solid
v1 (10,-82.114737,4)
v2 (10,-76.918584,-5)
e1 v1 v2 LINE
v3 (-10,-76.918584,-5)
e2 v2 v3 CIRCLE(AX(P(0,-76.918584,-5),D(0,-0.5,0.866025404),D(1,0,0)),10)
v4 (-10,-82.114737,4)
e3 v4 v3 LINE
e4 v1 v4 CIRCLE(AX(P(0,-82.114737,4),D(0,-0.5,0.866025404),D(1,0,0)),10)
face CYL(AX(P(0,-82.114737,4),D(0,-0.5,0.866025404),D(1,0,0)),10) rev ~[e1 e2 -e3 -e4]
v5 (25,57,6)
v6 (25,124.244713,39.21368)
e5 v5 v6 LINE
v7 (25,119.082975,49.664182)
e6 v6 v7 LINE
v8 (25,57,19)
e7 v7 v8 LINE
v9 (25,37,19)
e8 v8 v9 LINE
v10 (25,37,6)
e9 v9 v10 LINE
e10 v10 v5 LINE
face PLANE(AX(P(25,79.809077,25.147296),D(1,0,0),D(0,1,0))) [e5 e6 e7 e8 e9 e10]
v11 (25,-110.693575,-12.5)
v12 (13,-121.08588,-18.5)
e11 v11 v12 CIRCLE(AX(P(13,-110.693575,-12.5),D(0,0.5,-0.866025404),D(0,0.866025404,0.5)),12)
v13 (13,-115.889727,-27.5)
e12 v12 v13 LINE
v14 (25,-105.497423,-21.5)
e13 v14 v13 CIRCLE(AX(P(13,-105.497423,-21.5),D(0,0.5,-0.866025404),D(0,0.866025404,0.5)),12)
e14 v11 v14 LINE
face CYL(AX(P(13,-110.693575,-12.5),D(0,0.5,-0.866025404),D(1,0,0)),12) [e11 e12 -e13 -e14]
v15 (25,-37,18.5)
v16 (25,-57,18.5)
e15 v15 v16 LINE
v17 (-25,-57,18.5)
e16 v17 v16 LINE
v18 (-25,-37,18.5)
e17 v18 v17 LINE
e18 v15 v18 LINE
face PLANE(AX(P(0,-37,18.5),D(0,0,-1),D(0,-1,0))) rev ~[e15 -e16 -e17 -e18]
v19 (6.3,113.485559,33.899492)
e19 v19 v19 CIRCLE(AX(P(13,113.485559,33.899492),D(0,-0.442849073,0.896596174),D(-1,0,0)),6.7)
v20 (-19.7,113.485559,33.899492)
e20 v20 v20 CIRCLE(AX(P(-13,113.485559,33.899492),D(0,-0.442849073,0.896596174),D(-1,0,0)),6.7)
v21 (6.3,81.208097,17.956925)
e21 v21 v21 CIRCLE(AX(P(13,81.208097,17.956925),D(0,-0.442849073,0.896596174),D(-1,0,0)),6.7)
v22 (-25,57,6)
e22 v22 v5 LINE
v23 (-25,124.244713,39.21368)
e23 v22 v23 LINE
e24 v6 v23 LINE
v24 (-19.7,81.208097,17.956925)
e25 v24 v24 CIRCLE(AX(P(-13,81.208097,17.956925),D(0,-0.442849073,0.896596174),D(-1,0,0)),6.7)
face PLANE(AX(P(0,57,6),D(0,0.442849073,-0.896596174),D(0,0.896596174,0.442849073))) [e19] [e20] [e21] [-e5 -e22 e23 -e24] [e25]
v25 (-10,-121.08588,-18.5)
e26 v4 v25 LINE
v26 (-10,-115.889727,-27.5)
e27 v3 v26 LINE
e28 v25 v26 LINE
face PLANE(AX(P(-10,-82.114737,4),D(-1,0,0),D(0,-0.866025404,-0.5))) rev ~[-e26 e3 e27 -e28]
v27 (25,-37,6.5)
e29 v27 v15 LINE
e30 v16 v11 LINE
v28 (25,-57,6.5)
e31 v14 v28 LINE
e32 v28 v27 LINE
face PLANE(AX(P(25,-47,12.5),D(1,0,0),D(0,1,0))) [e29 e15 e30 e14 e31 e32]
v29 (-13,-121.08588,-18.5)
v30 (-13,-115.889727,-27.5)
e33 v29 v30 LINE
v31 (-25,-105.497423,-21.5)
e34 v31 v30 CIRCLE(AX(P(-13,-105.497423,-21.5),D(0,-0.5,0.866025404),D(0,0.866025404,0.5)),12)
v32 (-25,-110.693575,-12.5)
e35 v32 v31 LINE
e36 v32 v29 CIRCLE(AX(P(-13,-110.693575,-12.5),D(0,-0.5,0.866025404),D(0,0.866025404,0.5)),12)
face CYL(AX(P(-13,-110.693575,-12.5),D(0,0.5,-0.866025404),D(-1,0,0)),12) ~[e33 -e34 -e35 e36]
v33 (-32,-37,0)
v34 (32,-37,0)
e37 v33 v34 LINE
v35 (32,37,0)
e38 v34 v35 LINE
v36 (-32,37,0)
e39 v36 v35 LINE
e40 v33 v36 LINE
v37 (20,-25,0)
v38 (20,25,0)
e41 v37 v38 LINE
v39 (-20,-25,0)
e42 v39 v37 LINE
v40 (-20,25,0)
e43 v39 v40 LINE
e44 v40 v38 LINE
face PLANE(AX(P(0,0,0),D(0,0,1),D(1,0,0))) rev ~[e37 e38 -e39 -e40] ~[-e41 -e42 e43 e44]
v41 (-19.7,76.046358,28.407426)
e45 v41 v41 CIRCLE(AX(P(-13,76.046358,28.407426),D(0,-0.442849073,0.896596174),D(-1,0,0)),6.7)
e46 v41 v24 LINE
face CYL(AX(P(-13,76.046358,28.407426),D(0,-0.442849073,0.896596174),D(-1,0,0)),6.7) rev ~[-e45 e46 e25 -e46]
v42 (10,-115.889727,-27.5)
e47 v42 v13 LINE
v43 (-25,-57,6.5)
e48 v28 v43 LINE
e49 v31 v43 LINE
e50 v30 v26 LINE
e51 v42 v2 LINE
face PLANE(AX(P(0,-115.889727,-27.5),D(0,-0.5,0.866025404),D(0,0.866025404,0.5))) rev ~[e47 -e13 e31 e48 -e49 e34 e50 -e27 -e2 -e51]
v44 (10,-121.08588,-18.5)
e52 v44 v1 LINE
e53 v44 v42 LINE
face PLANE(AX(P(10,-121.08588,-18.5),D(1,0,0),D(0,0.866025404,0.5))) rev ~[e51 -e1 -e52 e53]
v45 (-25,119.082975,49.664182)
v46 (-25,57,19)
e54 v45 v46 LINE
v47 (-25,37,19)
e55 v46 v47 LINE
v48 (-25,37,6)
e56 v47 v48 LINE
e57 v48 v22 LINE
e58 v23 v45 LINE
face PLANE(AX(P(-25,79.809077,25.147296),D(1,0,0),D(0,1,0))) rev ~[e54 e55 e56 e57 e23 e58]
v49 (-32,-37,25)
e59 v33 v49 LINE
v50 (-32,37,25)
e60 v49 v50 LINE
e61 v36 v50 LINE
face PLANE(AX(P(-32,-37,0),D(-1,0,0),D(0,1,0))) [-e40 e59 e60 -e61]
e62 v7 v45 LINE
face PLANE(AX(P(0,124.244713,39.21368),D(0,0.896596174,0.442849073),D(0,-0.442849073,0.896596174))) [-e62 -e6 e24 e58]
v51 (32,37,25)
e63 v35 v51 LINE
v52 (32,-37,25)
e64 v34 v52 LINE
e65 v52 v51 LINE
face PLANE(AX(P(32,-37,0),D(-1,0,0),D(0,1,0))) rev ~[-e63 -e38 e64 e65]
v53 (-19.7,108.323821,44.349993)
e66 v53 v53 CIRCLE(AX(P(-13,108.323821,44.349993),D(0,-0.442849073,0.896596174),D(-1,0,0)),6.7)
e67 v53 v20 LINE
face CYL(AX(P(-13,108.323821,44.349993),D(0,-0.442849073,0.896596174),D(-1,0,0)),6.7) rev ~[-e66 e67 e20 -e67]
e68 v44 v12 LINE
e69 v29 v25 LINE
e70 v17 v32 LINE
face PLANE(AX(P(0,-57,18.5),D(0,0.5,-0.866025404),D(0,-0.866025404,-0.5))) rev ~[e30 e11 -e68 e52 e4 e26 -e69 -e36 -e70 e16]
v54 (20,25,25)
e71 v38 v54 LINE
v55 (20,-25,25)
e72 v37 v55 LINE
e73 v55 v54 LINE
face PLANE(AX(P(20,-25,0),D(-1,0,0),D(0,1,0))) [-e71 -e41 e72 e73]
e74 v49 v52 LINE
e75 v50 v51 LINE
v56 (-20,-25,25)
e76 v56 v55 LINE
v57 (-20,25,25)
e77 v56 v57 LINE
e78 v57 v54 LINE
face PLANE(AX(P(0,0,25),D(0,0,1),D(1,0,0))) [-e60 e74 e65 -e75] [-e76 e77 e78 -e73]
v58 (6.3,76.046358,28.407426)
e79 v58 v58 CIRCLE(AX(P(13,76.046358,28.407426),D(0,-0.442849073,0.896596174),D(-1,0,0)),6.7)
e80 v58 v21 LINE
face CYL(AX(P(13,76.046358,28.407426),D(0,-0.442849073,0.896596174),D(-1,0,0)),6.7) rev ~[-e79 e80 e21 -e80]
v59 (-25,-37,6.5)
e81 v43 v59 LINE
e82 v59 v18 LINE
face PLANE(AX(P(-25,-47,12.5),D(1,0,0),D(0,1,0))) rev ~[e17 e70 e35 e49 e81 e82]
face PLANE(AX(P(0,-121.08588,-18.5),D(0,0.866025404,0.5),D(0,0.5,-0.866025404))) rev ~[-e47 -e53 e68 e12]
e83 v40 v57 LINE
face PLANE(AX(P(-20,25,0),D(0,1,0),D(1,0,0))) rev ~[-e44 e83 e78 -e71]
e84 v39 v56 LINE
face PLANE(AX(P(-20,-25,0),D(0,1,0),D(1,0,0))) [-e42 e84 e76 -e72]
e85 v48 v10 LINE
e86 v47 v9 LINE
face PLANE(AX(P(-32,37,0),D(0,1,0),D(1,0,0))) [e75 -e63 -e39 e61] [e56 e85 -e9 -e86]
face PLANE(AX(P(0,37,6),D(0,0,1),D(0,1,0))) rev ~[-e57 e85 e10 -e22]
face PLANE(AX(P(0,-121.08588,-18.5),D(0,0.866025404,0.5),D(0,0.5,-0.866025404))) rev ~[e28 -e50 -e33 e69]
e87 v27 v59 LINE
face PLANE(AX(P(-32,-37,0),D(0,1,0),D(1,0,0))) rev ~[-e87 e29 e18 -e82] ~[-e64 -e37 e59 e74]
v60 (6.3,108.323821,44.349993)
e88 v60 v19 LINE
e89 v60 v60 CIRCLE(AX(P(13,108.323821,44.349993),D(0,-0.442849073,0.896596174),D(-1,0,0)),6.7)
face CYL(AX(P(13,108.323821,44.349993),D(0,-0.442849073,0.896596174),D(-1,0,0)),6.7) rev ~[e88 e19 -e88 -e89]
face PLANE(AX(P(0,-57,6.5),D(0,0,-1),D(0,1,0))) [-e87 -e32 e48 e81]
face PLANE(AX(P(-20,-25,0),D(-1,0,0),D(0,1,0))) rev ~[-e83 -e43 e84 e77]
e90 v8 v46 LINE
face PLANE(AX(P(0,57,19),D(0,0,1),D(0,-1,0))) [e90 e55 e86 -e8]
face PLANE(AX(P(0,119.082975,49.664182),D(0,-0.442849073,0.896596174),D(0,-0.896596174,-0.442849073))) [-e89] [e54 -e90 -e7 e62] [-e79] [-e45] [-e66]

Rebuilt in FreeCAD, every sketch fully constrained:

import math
import FreeCAD as App
import Part
import Sketcher
Q = App.Units.Quantity


def edges_at(feature, points):
    """Names of the edges that pass closest to the given points."""
    edges = feature.Shape.Edges
    near = lambda p: min(range(len(edges)), key=lambda i: edges[i].distToShape(Part.Vertex(*p))[0])
    return sorted({f"Edge{near(p) + 1}" for p in points})


def add_polygon(sketch, points):
    """Adds a closed chain of lines whose ends are joined by coincident constraints."""
    first, n = sketch.GeometryCount, len(points)
    for a, b in zip(points, points[1:] + points[:1]):
        sketch.addGeometry(Part.LineSegment(App.Vector(*a, 0), App.Vector(*b, 0)), False)
    for i in range(n):
        sketch.addConstraint(Sketcher.Constraint("Coincident", first + i, 2, first + (i + 1) % n, 1))

doc = App.newDocument("Part")
body = doc.addObject("PartDesign::Body", "Body")

# Sketch on XY plane
sketch1 = doc.addObject("Sketcher::SketchObject", "Sketch")
body.addObject(sketch1)
sketch1.AttachmentSupport = (doc.XY_Plane, [""])
sketch1.MapMode = "FlatFace"
add_polygon(sketch1, [(-32, 37), (-32, -37), (32, -37), (32, 37)])  # lines 0-3
add_polygon(sketch1, [(20, -25), (-20, -25), (-20, 25), (20, 25)])  # lines 4-7
sketch1.addConstraint(Sketcher.Constraint("Vertical", 0))
sketch1.addConstraint(Sketcher.Constraint("Horizontal", 1))
sketch1.addConstraint(Sketcher.Constraint("Vertical", 2))
sketch1.addConstraint(Sketcher.Constraint("Horizontal", 3))
sketch1.addConstraint(Sketcher.Constraint("Horizontal", 4))
sketch1.addConstraint(Sketcher.Constraint("Vertical", 5))
sketch1.addConstraint(Sketcher.Constraint("Horizontal", 6))
sketch1.addConstraint(Sketcher.Constraint("Vertical", 7))
sketch1.addConstraint(Sketcher.Constraint("Symmetric", 0, 2, 2, 2, -1, 1))
sketch1.addConstraint(Sketcher.Constraint("Symmetric", 4, 2, 6, 2, -1, 1))
sketch1.addConstraint(Sketcher.Constraint("DistanceX", 1, 1, 1, 2, Q("64 mm")))
sketch1.addConstraint(Sketcher.Constraint("DistanceX", 4, 2, 4, 1, Q("40 mm")))
sketch1.addConstraint(Sketcher.Constraint("DistanceY", 0, 2, 0, 1, Q("74 mm")))
sketch1.addConstraint(Sketcher.Constraint("DistanceY", 5, 1, 5, 2, Q("50 mm")))
pad1 = doc.addObject("PartDesign::Pad", "Pad")
body.addObject(pad1)
pad1.Profile = sketch1
pad1.Length = 25

# Sketch on YZ plane
sketch2 = doc.addObject("Sketcher::SketchObject", "Sketch001")
body.addObject(sketch2)
sketch2.AttachmentSupport = (doc.YZ_Plane, [""])
sketch2.MapMode = "FlatFace"
add_polygon(sketch2, [(-37, 18), (-57, 18), (-121, -18), (-116, -28), (-57, 6), (-37, 6)])  # lines 0-5
sketch2.addConstraint(Sketcher.Constraint("Horizontal", 0))
sketch2.addConstraint(Sketcher.Constraint("Horizontal", 4))
sketch2.addConstraint(Sketcher.Constraint("Vertical", 5))
sketch2.addConstraint(Sketcher.Constraint("Perpendicular", 1, 2))
sketch2.addConstraint(Sketcher.Constraint("Perpendicular", 2, 3))
sketch2.addConstraint(Sketcher.Constraint("Vertical", 0, 2, 3, 2))
sketch2.addConstraint(Sketcher.Constraint("DistanceX", 0, 2, 0, 1, Q("20 mm")))
sketch2.addConstraint(Sketcher.Constraint("DistanceY", 5, 1, 5, 2, Q("12 mm")))
sketch2.addConstraint(Sketcher.Constraint("Angle", 1, Q("-150 deg")))
sketch2.addConstraint(Sketcher.Constraint("Distance", 1, Q("74 mm")))
sketch2.addConstraint(Sketcher.Constraint("DistanceX", 0, 2, -1, 1, Q("57 mm")))
sketch2.addConstraint(Sketcher.Constraint("DistanceY", -1, 1, 0, 2, Q("18.5 mm")))
pad2 = doc.addObject("PartDesign::Pad", "Pad001")
body.addObject(pad2)
pad2.Profile = sketch2
pad2.Type = "TwoLengths"
pad2.Length = 25
pad2.Length2 = 25
pad2.Reversed = True

# Sketch on an angled plane
sketch3 = doc.addObject("Sketcher::SketchObject", "Sketch002")
body.addObject(sketch3)
sketch3.Placement = App.Placement(App.Vector(0, -22.260735, 38.556724), App.Rotation(App.Vector(1, 0, 0), App.Vector(0, 0.866025404, 0.5), App.Vector(0, -0.5, 0.866025404), "ZXY"))
sketch3.addGeometry(Part.LineSegment(App.Vector(10, -114, 0), App.Vector(10, -69, 0)), False)
sketch3.addGeometry(Part.ArcOfCircle(Part.Circle(App.Vector(0, -69, 0), App.Vector(0, 0, 1), 10), math.radians(0), math.radians(180)), False)
sketch3.addGeometry(Part.LineSegment(App.Vector(-10, -69, 0), App.Vector(-10, -114, 0)), False)
sketch3.addGeometry(Part.LineSegment(App.Vector(-10, -114, 0), App.Vector(10, -114, 0)), False)
sketch3.addConstraint(Sketcher.Constraint("Tangent", 0, 2, 1, 1))
sketch3.addConstraint(Sketcher.Constraint("Tangent", 1, 2, 2, 1))
sketch3.addConstraint(Sketcher.Constraint("Coincident", 2, 2, 3, 1))
sketch3.addConstraint(Sketcher.Constraint("Coincident", 3, 2, 0, 1))
sketch3.addConstraint(Sketcher.Constraint("Vertical", 0))
sketch3.addConstraint(Sketcher.Constraint("Vertical", 2))
sketch3.addConstraint(Sketcher.Constraint("Horizontal", 3))
sketch3.addConstraint(Sketcher.Constraint("PointOnObject", 1, 3, -2))
sketch3.addConstraint(Sketcher.Constraint("Radius", 1, Q("10 mm")))
sketch3.addConstraint(Sketcher.Constraint("DistanceY", 0, 1, 0, 2, Q("45 mm")))
sketch3.addConstraint(Sketcher.Constraint("DistanceY", 1, 3, -1, 1, Q("69.113448 mm")))
pocket1 = doc.addObject("PartDesign::Pocket", "Pocket")
body.addObject(pocket1)
pocket1.Profile = sketch3
pocket1.Length = 25
doc.recompute()

fillet = doc.addObject("PartDesign::Fillet", "Fillet")
body.addObject(fillet)
fillet.Base = (pocket1, edges_at(pocket1, [(-25, -118.488, -23)]))
fillet.Radius = 12
doc.recompute()

fillet2 = doc.addObject("PartDesign::Fillet", "Fillet001")
body.addObject(fillet2)
fillet2.Base = (fillet, edges_at(fillet, [(25, -118.488, -23)]))
fillet2.Radius = 12

# Sketch on YZ plane
sketch4 = doc.addObject("Sketcher::SketchObject", "Sketch003")
body.addObject(sketch4)
sketch4.AttachmentSupport = (doc.YZ_Plane, [""])
sketch4.MapMode = "FlatFace"
add_polygon(sketch4, [(57, 19), (37, 19), (37, 6), (57, 6), (124, 39), (119, 50)])  # lines 0-5
sketch4.addConstraint(Sketcher.Constraint("Horizontal", 0))
sketch4.addConstraint(Sketcher.Constraint("Vertical", 1))
sketch4.addConstraint(Sketcher.Constraint("Horizontal", 2))
sketch4.addConstraint(Sketcher.Constraint("Perpendicular", 3, 4))
sketch4.addConstraint(Sketcher.Constraint("Perpendicular", 4, 5))
sketch4.addConstraint(Sketcher.Constraint("Vertical", 2, 2, 5, 2))
sketch4.addConstraint(Sketcher.Constraint("DistanceX", 0, 2, 0, 1, Q("20 mm")))
sketch4.addConstraint(Sketcher.Constraint("DistanceY", 1, 2, 1, 1, Q("13 mm")))
sketch4.addConstraint(Sketcher.Constraint("Distance", 3, Q("75 mm")))
sketch4.addConstraint(Sketcher.Constraint("DistanceX", -1, 1, 0, 2, Q("37 mm")))
sketch4.addConstraint(Sketcher.Constraint("DistanceY", -1, 1, 0, 2, Q("19 mm")))
sketch4.addConstraint(Sketcher.Constraint("DistanceY", 3, 2, 4, 2, Q("10.450501 mm")))
pad3 = doc.addObject("PartDesign::Pad", "Pad002")
body.addObject(pad3)
pad3.Profile = sketch4
pad3.Type = "TwoLengths"
pad3.Length = 25
pad3.Length2 = 25

# Sketch on an angled plane
sketch5 = doc.addObject("Sketcher::SketchObject", "Sketch004")
body.addObject(sketch5)
sketch5.Placement = App.Placement(App.Vector(0, 3.634493, -7.358427), App.Rotation(App.Vector(1, 0, 0), App.Vector(0, 0.896596174, 0.442849073), App.Vector(0, -0.442849073, 0.896596174), "ZXY"))
sketch5.addGeometry(Part.Circle(App.Vector(13, 117, 0), App.Vector(0, 0, 1), 7), False)
sketch5.addGeometry(Part.Circle(App.Vector(-13, 117, 0), App.Vector(0, 0, 1), 7), False)
sketch5.addGeometry(Part.Circle(App.Vector(13, 81, 0), App.Vector(0, 0, 1), 7), False)
sketch5.addGeometry(Part.Circle(App.Vector(-13, 81, 0), App.Vector(0, 0, 1), 7), False)
sketch5.addConstraint(Sketcher.Constraint("Equal", 0, 1))
sketch5.addConstraint(Sketcher.Constraint("Equal", 1, 2))
sketch5.addConstraint(Sketcher.Constraint("Equal", 2, 3))
sketch5.addConstraint(Sketcher.Constraint("Symmetric", 0, 3, 1, 3, -2))
sketch5.addConstraint(Sketcher.Constraint("Symmetric", 2, 3, 3, 3, -2))
sketch5.addConstraint(Sketcher.Constraint("Vertical", 0, 3, 2, 3))
sketch5.addConstraint(Sketcher.Constraint("Diameter", 0, Q("13.4 mm")))
sketch5.addConstraint(Sketcher.Constraint("DistanceX", -1, 1, 0, 3, Q("13 mm")))
sketch5.addConstraint(Sketcher.Constraint("DistanceY", 2, 3, 0, 3, Q("36 mm")))
sketch5.addConstraint(Sketcher.Constraint("DistanceY", -1, 1, 0, 3, Q("116.763076 mm")))
pocket2 = doc.addObject("PartDesign::Pocket", "Pocket001")
body.addObject(pocket2)
pocket2.Profile = sketch5
pocket2.Length = 25

doc.recompute()
